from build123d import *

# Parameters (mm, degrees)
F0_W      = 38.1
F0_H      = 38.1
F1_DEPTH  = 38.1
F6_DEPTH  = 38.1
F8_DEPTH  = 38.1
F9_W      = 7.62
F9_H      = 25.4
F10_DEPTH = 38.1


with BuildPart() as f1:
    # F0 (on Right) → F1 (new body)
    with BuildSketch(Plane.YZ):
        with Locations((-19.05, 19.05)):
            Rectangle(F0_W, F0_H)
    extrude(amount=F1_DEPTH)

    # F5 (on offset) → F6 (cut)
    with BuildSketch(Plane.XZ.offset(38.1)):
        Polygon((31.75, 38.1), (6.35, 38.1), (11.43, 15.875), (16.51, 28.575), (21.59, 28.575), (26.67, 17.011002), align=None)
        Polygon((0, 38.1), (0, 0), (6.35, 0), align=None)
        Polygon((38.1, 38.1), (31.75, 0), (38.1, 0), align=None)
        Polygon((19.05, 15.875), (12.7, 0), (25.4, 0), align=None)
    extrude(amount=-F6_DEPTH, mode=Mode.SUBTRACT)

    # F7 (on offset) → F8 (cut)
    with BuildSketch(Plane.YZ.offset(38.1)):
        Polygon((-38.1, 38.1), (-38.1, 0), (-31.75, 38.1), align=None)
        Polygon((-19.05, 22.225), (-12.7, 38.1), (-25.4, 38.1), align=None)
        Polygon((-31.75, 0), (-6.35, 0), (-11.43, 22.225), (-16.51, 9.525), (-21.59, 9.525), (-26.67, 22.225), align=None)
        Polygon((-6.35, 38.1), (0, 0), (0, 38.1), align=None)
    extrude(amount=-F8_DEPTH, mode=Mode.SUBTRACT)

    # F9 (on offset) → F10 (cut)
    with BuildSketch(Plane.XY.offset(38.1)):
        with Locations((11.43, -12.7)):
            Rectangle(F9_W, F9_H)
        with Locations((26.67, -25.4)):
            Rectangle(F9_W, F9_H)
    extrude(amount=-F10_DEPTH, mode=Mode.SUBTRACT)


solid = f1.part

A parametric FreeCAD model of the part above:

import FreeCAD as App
import Part
import Sketcher
from FreeCAD import Vector
Q = App.Units.Quantity

doc = App.newDocument("Part")
body = doc.addObject("PartDesign::Body", "Body")

# Sketch on YZ plane
sketch1 = doc.addObject("Sketcher::SketchObject", "Sketch")
body.addObject(sketch1)
sketch1.AttachmentSupport = (doc.YZ_Plane, [""])
sketch1.MapMode = "FlatFace"
sketch1.addGeometry([
    Part.LineSegment(Vector(-38.1, 38.1, 0), Vector(-38.1, 0, 0)),
    Part.LineSegment(Vector(-38.1, 0, 0), Vector(0, 0, 0)),
    Part.LineSegment(Vector(0, 0, 0), Vector(0, 38.1, 0)),
    Part.LineSegment(Vector(0, 38.1, 0), Vector(-38.1, 38.1, 0)),
], False)
sketch1.addConstraint([
    Sketcher.Constraint("Coincident", 0, 2, 1, 1),
    Sketcher.Constraint("Coincident", 1, 2, 2, 1),
    Sketcher.Constraint("Coincident", 2, 2, 3, 1),
    Sketcher.Constraint("Coincident", 3, 2, 0, 1),
    Sketcher.Constraint("Vertical", 0),
    Sketcher.Constraint("Horizontal", 1),
    Sketcher.Constraint("Vertical", 2),
    Sketcher.Constraint("Horizontal", 3),
    Sketcher.Constraint("Coincident", 1, 2, -1, 1),
    Sketcher.Constraint("Equal", 3, 0),
    Sketcher.Constraint("DistanceX", 1, 1, 1, 2, Q("1.5 in")),
])
pad1 = doc.addObject("PartDesign::Pad", "Pad")
body.addObject(pad1)
pad1.Profile = sketch1
pad1.Length = Q("1.5 in")

# Sketch on XZ plane
sketch2 = doc.addObject("Sketcher::SketchObject", "Sketch001")
body.addObject(sketch2)
sketch2.AttachmentSupport = (doc.XZ_Plane, [""])
sketch2.MapMode = "FlatFace"
sketch2.AttachmentOffset = App.Placement(Vector(0, 0, 1.5 * 25.4), App.Rotation())
sketch2.addGeometry([
    Part.LineSegment(Vector(31.75, 38.1, 0), Vector(6.35, 38.1, 0)),  # 0
    Part.LineSegment(Vector(6.35, 38.1, 0), Vector(11.43, 15.875, 0)),  # 1
    Part.LineSegment(Vector(11.43, 15.875, 0), Vector(16.51, 28.575, 0)),  # 2
    Part.LineSegment(Vector(16.51, 28.575, 0), Vector(21.59, 28.575, 0)),  # 3
    Part.LineSegment(Vector(21.59, 28.575, 0), Vector(26.67, 17.011002, 0)),  # 4
    Part.LineSegment(Vector(26.67, 17.011002, 0), Vector(31.75, 38.1, 0)),  # 5
    Part.LineSegment(Vector(0, 38.1, 0), Vector(0, 0, 0)),  # 6
    Part.LineSegment(Vector(0, 0, 0), Vector(6.35, 0, 0)),  # 7
    Part.LineSegment(Vector(6.35, 0, 0), Vector(0, 38.1, 0)),  # 8
    Part.LineSegment(Vector(38.1, 38.1, 0), Vector(31.75, 0, 0)),  # 9
    Part.LineSegment(Vector(31.75, 0, 0), Vector(38.1, 0, 0)),  # 10
    Part.LineSegment(Vector(38.1, 0, 0), Vector(38.1, 38.1, 0)),  # 11
    Part.LineSegment(Vector(19.05, 15.875, 0), Vector(12.7, 0, 0)),  # 12
    Part.LineSegment(Vector(12.7, 0, 0), Vector(25.4, 0, 0)),  # 13
    Part.LineSegment(Vector(25.4, 0, 0), Vector(19.05, 15.875, 0)),  # 14
], False)
sketch2.addConstraint([
    Sketcher.Constraint("Coincident", 0, 2, 1, 1),
    Sketcher.Constraint("Coincident", 1, 2, 2, 1),
    Sketcher.Constraint("Coincident", 2, 2, 3, 1),
    Sketcher.Constraint("Coincident", 3, 2, 4, 1),
    Sketcher.Constraint("Coincident", 4, 2, 5, 1),
    Sketcher.Constraint("Coincident", 5, 2, 0, 1),
    Sketcher.Constraint("Coincident", 6, 2, 7, 1),
    Sketcher.Constraint("Coincident", 7, 2, 8, 1),
    Sketcher.Constraint("Coincident", 8, 2, 6, 1),
    Sketcher.Constraint("Coincident", 9, 2, 10, 1),
    Sketcher.Constraint("Coincident", 10, 2, 11, 1),
    Sketcher.Constraint("Coincident", 11, 2, 9, 1),
    Sketcher.Constraint("Coincident", 12, 2, 13, 1),
    Sketcher.Constraint("Coincident", 13, 2, 14, 1),
    Sketcher.Constraint("Coincident", 14, 2, 12, 1),
    Sketcher.Constraint("Horizontal", 0),
    Sketcher.Constraint("Horizontal", 3),
    Sketcher.Constraint("Vertical", 6),
    Sketcher.Constraint("Horizontal", 7),
    Sketcher.Constraint("Horizontal", 10),
    Sketcher.Constraint("Vertical", 11),
    Sketcher.Constraint("Horizontal", 13),
    Sketcher.Constraint("Coincident", 6, 2, -1, 1),
    Sketcher.Constraint("PointOnObject", 9, 2, -1),
    Sketcher.Constraint("PointOnObject", 12, 2, -1),
    Sketcher.Constraint("Parallel", 2, 12),
    Sketcher.Constraint("Horizontal", 5, 2, 8, 2),
    Sketcher.Constraint("Horizontal", 8, 2, 11, 2),
    Sketcher.Constraint("Horizontal", 1, 2, 14, 2),
    Sketcher.Constraint("Vertical", 0, 2, 7, 2),
    Sketcher.Constraint("Vertical", 5, 2, 9, 2),
    Sketcher.Constraint("Equal", 7, 10),
    Sketcher.Constraint("Equal", 12, 14),
    Sketcher.Constraint("DistanceX", 0, 2, 0, 1, Q("1 in")),
    Sketcher.Constraint("DistanceX", 3, 1, 3, 2, Q("0.2 in")),
    Sketcher.Constraint("DistanceX", 13, 1, 13, 2, Q("0.5 in")),
    Sketcher.Constraint("DistanceY", 6, 2, 6, 1, Q("1.5 in")),
    Sketcher.Constraint("DistanceX", -1, 1, 13, 2, Q("1 in")),
    Sketcher.Constraint("DistanceX", 7, 1, 7, 2, Q("0.25 in")),
    Sketcher.Constraint("DistanceX", 0, 2, 1, 2, Q("0.2 in")),
    Sketcher.Constraint("DistanceX", 1, 2, 2, 2, Q("0.2 in")),
    Sketcher.Constraint("DistanceY", 1, 2, 2, 2, Q("0.5 in")),
    Sketcher.Constraint("DistanceX", 3, 2, 4, 2, Q("0.2 in")),
    Sketcher.Constraint("DistanceY", 4, 2, 0, 2, Q("21.088998 mm")),
])
pocket1 = doc.addObject("PartDesign::Pocket", "Pocket")
body.addObject(pocket1)
pocket1.Profile = sketch2
pocket1.Length = Q("1.5 in")

# Sketch on YZ plane
sketch3 = doc.addObject("Sketcher::SketchObject", "Sketch002")
body.addObject(sketch3)
sketch3.AttachmentSupport = (doc.YZ_Plane, [""])
sketch3.MapMode = "FlatFace"
sketch3.AttachmentOffset = App.Placement(Vector(0, 0, 1.5 * 25.4), App.Rotation())
sketch3.addGeometry([
    Part.LineSegment(Vector(-38.1, 38.1, 0), Vector(-38.1, 0, 0)),  # 0
    Part.LineSegment(Vector(-38.1, 0, 0), Vector(-31.75, 38.1, 0)),  # 1
    Part.LineSegment(Vector(-31.75, 38.1, 0), Vector(-38.1, 38.1, 0)),  # 2
    Part.LineSegment(Vector(-19.05, 22.225, 0), Vector(-12.7, 38.1, 0)),  # 3
    Part.LineSegment(Vector(-12.7, 38.1, 0), Vector(-25.4, 38.1, 0)),  # 4
    Part.LineSegment(Vector(-25.4, 38.1, 0), Vector(-19.05, 22.225, 0)),  # 5
    Part.LineSegment(Vector(-31.75, 0, 0), Vector(-6.35, 0, 0)),  # 6
    Part.LineSegment(Vector(-6.35, 0, 0), Vector(-11.43, 22.225, 0)),  # 7
    Part.LineSegment(Vector(-11.43, 22.225, 0), Vector(-16.51, 9.525, 0)),  # 8
    Part.LineSegment(Vector(-16.51, 9.525, 0), Vector(-21.59, 9.525, 0)),  # 9
    Part.LineSegment(Vector(-21.59, 9.525, 0), Vector(-26.67, 22.225, 0)),  # 10
    Part.LineSegment(Vector(-26.67, 22.225, 0), Vector(-31.75, 0, 0)),  # 11
    Part.LineSegment(Vector(-6.35, 38.1, 0), Vector(0, 0, 0)),  # 12
    Part.LineSegment(Vector(0, 0, 0), Vector(0, 38.1, 0)),  # 13
    Part.LineSegment(Vector(0, 38.1, 0), Vector(-6.35, 38.1, 0)),  # 14
], False)
sketch3.addConstraint([
    Sketcher.Constraint("Coincident", 0, 2, 1, 1),
    Sketcher.Constraint("Coincident", 1, 2, 2, 1),
    Sketcher.Constraint("Coincident", 2, 2, 0, 1),
    Sketcher.Constraint("Coincident", 3, 2, 4, 1),
    Sketcher.Constraint("Coincident", 4, 2, 5, 1),
    Sketcher.Constraint("Coincident", 5, 2, 3, 1),
    Sketcher.Constraint("Coincident", 6, 2, 7, 1),
    Sketcher.Constraint("Coincident", 7, 2, 8, 1),
    Sketcher.Constraint("Coincident", 8, 2, 9, 1),
    Sketcher.Constraint("Coincident", 9, 2, 10, 1),
    Sketcher.Constraint("Coincident", 10, 2, 11, 1),
    Sketcher.Constraint("Coincident", 11, 2, 6, 1),
    Sketcher.Constraint("Coincident", 12, 2, 13, 1),
    Sketcher.Constraint("Coincident", 13, 2, 14, 1),
    Sketcher.Constraint("Coincident", 14, 2, 12, 1),
    Sketcher.Constraint("Vertical", 0),
    Sketcher.Constraint("Horizontal", 2),
    Sketcher.Constraint("Horizontal", 4),
    Sketcher.Constraint("Horizontal", 6),
    Sketcher.Constraint("Horizontal", 9),
    Sketcher.Constraint("Vertical", 13),
    Sketcher.Constraint("Horizontal", 14),
    Sketcher.Constraint("Coincident", 12, 2, -1, 1),
    Sketcher.Constraint("PointOnObject", 0, 2, -1),
    Sketcher.Constraint("PointOnObject", 6, 2, -1),
    Sketcher.Constraint("Parallel", 3, 8),
    Sketcher.Constraint("Parallel", 5, 10),
    Sketcher.Constraint("Horizontal", 2, 2, 3, 2),
    Sketcher.Constraint("Horizontal", 5, 2, 7, 2),
    Sketcher.Constraint("Horizontal", 7, 2, 10, 2),
    Sketcher.Constraint("Horizontal", 4, 2, 13, 2),
    Sketcher.Constraint("Vertical", 1, 2, 11, 2),
    Sketcher.Constraint("Vertical", 6, 2, 14, 2),
    Sketcher.Constraint("Equal", 2, 14),
    Sketcher.Constraint("Equal", 3, 5),
    Sketcher.Constraint("Equal", 7, 11),
    Sketcher.Constraint("DistanceX", 6, 1, 6, 2, Q("1 in")),
    Sketcher.Constraint("DistanceX", 4, 2, 4, 1, Q("0.5 in")),
    Sketcher.Constraint("DistanceX", 9, 2, 9, 1, Q("0.2 in")),
    Sketcher.Constraint("DistanceY", 0, 2, 0, 1, Q("1.5 in")),
    Sketcher.Constraint("DistanceX", 4, 2, -1, 1, Q("1 in")),
    Sketcher.Constraint("DistanceX", 2, 2, 3, 2, Q("1 in")),
    Sketcher.Constraint("DistanceX", 5, 2, 7, 2, Q("0.3 in")),
    Sketcher.Constraint("DistanceY", 8, 2, 5, 2, Q("0.5 in")),
])
pocket2 = doc.addObject("PartDesign::Pocket", "Pocket001")
body.addObject(pocket2)
pocket2.Profile = sketch3
pocket2.Length = Q("1.5 in")

# Sketch on XY plane
sketch4 = doc.addObject("Sketcher::SketchObject", "Sketch003")
body.addObject(sketch4)
sketch4.AttachmentSupport = (doc.XY_Plane, [""])
sketch4.MapMode = "FlatFace"
sketch4.AttachmentOffset = App.Placement(Vector(0, 0, 1.5 * 25.4), App.Rotation())
sketch4.addGeometry([
    Part.LineSegment(Vector(7.62, 0, 0), Vector(7.62, -25.4, 0)),  # 0
    Part.LineSegment(Vector(7.62, -25.4, 0), Vector(15.24, -25.4, 0)),  # 1
    Part.LineSegment(Vector(15.24, -25.4, 0), Vector(15.24, 0, 0)),  # 2
    Part.LineSegment(Vector(15.24, 0, 0), Vector(7.62, 0, 0)),  # 3
    Part.LineSegment(Vector(22.86, -12.7, 0), Vector(22.86, -38.1, 0)),  # 4
    Part.LineSegment(Vector(22.86, -38.1, 0), Vector(30.48, -38.1, 0)),  # 5
    Part.LineSegment(Vector(30.48, -38.1, 0), Vector(30.48, -12.7, 0)),  # 6
    Part.LineSegment(Vector(30.48, -12.7, 0), Vector(22.86, -12.7, 0)),  # 7
], False)
sketch4.addConstraint([
    Sketcher.Constraint("Coincident", 0, 2, 1, 1),
    Sketcher.Constraint("Coincident", 1, 2, 2, 1),
    Sketcher.Constraint("Coincident", 2, 2, 3, 1),
    Sketcher.Constraint("Coincident", 3, 2, 0, 1),
    Sketcher.Constraint("Coincident", 4, 2, 5, 1),
    Sketcher.Constraint("Coincident", 5, 2, 6, 1),
    Sketcher.Constraint("Coincident", 6, 2, 7, 1),
    Sketcher.Constraint("Coincident", 7, 2, 4, 1),
    Sketcher.Constraint("Vertical", 0),
    Sketcher.Constraint("Horizontal", 1),
    Sketcher.Constraint("Vertical", 2),
    Sketcher.Constraint("Horizontal", 3),
    Sketcher.Constraint("Vertical", 4),
    Sketcher.Constraint("Horizontal", 5),
    Sketcher.Constraint("Vertical", 6),
    Sketcher.Constraint("Horizontal", 7),
    Sketcher.Constraint("PointOnObject", 2, 2, -1),
    Sketcher.Constraint("Equal", 3, 5),
    Sketcher.Constraint("Equal", 2, 4),
    Sketcher.Constraint("DistanceY", 0, 2, 0, 1, Q("1 in")),
    Sketcher.Constraint("DistanceX", 1, 1, 1, 2, Q("0.3 in")),
    Sketcher.Constraint("DistanceX", -1, 1, 0, 2, Q("0.3 in")),
    Sketcher.Constraint("DistanceX", -1, 1, 4, 2, Q("0.9 in")),
    Sketcher.Constraint("DistanceY", 4, 2, -1, 1, Q("1.5 in")),
])
pocket3 = doc.addObject("PartDesign::Pocket", "Pocket002")
body.addObject(pocket3)
pocket3.Profile = sketch4
pocket3.Length = Q("1.5 in")

doc.recompute()
